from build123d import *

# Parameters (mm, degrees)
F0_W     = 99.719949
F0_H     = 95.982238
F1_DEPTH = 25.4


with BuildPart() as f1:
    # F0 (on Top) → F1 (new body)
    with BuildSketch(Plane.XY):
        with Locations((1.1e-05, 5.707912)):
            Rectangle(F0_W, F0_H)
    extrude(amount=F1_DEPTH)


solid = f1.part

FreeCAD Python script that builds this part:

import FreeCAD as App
import Part
import Sketcher

V = App.Vector
Q = App.Units.Quantity

doc = App.newDocument("Part")
body = doc.addObject("PartDesign::Body", "Body")

sketch1 = doc.addObject("Sketcher::SketchObject", "Sketch")
body.addObject(sketch1)
sketch1.AttachmentSupport = (doc.XY_Plane, [""])
sketch1.MapMode = "FlatFace"
sketch1.addGeometry([
    Part.LineSegment(V(-50, 54, 0), V(-50, -42, 0)),
    Part.LineSegment(V(-50, -42, 0), V(50, -42, 0)),
    Part.LineSegment(V(50, -42, 0), V(50, 54, 0)),
    Part.LineSegment(V(50, 54, 0), V(-50, 54, 0)),
], False)
sketch1.addConstraint([
    Sketcher.Constraint("Coincident", 0, 2, 1, 1),
    Sketcher.Constraint("Coincident", 1, 2, 2, 1),
    Sketcher.Constraint("Coincident", 2, 2, 3, 1),
    Sketcher.Constraint("Coincident", 3, 2, 0, 1),
    Sketcher.Constraint("Vertical", 0),
    Sketcher.Constraint("Horizontal", 1),
    Sketcher.Constraint("Vertical", 2),
    Sketcher.Constraint("Horizontal", 3),
    Sketcher.Constraint("DistanceX", 1, 1, 1, 2, 99.719949),
    Sketcher.Constraint("DistanceY", 0, 2, 0, 1, 95.982238),
    Sketcher.Constraint("DistanceY", -1, 1, 2, 2, 53.699031),
    Sketcher.Constraint("DistanceX", 0, 2, -1, 1, 49.859963),
])
pad1 = doc.addObject("PartDesign::Pad", "Pad")
body.addObject(pad1)
pad1.Profile = sketch1
pad1.Length = Q("1 in")

doc.recompute()
